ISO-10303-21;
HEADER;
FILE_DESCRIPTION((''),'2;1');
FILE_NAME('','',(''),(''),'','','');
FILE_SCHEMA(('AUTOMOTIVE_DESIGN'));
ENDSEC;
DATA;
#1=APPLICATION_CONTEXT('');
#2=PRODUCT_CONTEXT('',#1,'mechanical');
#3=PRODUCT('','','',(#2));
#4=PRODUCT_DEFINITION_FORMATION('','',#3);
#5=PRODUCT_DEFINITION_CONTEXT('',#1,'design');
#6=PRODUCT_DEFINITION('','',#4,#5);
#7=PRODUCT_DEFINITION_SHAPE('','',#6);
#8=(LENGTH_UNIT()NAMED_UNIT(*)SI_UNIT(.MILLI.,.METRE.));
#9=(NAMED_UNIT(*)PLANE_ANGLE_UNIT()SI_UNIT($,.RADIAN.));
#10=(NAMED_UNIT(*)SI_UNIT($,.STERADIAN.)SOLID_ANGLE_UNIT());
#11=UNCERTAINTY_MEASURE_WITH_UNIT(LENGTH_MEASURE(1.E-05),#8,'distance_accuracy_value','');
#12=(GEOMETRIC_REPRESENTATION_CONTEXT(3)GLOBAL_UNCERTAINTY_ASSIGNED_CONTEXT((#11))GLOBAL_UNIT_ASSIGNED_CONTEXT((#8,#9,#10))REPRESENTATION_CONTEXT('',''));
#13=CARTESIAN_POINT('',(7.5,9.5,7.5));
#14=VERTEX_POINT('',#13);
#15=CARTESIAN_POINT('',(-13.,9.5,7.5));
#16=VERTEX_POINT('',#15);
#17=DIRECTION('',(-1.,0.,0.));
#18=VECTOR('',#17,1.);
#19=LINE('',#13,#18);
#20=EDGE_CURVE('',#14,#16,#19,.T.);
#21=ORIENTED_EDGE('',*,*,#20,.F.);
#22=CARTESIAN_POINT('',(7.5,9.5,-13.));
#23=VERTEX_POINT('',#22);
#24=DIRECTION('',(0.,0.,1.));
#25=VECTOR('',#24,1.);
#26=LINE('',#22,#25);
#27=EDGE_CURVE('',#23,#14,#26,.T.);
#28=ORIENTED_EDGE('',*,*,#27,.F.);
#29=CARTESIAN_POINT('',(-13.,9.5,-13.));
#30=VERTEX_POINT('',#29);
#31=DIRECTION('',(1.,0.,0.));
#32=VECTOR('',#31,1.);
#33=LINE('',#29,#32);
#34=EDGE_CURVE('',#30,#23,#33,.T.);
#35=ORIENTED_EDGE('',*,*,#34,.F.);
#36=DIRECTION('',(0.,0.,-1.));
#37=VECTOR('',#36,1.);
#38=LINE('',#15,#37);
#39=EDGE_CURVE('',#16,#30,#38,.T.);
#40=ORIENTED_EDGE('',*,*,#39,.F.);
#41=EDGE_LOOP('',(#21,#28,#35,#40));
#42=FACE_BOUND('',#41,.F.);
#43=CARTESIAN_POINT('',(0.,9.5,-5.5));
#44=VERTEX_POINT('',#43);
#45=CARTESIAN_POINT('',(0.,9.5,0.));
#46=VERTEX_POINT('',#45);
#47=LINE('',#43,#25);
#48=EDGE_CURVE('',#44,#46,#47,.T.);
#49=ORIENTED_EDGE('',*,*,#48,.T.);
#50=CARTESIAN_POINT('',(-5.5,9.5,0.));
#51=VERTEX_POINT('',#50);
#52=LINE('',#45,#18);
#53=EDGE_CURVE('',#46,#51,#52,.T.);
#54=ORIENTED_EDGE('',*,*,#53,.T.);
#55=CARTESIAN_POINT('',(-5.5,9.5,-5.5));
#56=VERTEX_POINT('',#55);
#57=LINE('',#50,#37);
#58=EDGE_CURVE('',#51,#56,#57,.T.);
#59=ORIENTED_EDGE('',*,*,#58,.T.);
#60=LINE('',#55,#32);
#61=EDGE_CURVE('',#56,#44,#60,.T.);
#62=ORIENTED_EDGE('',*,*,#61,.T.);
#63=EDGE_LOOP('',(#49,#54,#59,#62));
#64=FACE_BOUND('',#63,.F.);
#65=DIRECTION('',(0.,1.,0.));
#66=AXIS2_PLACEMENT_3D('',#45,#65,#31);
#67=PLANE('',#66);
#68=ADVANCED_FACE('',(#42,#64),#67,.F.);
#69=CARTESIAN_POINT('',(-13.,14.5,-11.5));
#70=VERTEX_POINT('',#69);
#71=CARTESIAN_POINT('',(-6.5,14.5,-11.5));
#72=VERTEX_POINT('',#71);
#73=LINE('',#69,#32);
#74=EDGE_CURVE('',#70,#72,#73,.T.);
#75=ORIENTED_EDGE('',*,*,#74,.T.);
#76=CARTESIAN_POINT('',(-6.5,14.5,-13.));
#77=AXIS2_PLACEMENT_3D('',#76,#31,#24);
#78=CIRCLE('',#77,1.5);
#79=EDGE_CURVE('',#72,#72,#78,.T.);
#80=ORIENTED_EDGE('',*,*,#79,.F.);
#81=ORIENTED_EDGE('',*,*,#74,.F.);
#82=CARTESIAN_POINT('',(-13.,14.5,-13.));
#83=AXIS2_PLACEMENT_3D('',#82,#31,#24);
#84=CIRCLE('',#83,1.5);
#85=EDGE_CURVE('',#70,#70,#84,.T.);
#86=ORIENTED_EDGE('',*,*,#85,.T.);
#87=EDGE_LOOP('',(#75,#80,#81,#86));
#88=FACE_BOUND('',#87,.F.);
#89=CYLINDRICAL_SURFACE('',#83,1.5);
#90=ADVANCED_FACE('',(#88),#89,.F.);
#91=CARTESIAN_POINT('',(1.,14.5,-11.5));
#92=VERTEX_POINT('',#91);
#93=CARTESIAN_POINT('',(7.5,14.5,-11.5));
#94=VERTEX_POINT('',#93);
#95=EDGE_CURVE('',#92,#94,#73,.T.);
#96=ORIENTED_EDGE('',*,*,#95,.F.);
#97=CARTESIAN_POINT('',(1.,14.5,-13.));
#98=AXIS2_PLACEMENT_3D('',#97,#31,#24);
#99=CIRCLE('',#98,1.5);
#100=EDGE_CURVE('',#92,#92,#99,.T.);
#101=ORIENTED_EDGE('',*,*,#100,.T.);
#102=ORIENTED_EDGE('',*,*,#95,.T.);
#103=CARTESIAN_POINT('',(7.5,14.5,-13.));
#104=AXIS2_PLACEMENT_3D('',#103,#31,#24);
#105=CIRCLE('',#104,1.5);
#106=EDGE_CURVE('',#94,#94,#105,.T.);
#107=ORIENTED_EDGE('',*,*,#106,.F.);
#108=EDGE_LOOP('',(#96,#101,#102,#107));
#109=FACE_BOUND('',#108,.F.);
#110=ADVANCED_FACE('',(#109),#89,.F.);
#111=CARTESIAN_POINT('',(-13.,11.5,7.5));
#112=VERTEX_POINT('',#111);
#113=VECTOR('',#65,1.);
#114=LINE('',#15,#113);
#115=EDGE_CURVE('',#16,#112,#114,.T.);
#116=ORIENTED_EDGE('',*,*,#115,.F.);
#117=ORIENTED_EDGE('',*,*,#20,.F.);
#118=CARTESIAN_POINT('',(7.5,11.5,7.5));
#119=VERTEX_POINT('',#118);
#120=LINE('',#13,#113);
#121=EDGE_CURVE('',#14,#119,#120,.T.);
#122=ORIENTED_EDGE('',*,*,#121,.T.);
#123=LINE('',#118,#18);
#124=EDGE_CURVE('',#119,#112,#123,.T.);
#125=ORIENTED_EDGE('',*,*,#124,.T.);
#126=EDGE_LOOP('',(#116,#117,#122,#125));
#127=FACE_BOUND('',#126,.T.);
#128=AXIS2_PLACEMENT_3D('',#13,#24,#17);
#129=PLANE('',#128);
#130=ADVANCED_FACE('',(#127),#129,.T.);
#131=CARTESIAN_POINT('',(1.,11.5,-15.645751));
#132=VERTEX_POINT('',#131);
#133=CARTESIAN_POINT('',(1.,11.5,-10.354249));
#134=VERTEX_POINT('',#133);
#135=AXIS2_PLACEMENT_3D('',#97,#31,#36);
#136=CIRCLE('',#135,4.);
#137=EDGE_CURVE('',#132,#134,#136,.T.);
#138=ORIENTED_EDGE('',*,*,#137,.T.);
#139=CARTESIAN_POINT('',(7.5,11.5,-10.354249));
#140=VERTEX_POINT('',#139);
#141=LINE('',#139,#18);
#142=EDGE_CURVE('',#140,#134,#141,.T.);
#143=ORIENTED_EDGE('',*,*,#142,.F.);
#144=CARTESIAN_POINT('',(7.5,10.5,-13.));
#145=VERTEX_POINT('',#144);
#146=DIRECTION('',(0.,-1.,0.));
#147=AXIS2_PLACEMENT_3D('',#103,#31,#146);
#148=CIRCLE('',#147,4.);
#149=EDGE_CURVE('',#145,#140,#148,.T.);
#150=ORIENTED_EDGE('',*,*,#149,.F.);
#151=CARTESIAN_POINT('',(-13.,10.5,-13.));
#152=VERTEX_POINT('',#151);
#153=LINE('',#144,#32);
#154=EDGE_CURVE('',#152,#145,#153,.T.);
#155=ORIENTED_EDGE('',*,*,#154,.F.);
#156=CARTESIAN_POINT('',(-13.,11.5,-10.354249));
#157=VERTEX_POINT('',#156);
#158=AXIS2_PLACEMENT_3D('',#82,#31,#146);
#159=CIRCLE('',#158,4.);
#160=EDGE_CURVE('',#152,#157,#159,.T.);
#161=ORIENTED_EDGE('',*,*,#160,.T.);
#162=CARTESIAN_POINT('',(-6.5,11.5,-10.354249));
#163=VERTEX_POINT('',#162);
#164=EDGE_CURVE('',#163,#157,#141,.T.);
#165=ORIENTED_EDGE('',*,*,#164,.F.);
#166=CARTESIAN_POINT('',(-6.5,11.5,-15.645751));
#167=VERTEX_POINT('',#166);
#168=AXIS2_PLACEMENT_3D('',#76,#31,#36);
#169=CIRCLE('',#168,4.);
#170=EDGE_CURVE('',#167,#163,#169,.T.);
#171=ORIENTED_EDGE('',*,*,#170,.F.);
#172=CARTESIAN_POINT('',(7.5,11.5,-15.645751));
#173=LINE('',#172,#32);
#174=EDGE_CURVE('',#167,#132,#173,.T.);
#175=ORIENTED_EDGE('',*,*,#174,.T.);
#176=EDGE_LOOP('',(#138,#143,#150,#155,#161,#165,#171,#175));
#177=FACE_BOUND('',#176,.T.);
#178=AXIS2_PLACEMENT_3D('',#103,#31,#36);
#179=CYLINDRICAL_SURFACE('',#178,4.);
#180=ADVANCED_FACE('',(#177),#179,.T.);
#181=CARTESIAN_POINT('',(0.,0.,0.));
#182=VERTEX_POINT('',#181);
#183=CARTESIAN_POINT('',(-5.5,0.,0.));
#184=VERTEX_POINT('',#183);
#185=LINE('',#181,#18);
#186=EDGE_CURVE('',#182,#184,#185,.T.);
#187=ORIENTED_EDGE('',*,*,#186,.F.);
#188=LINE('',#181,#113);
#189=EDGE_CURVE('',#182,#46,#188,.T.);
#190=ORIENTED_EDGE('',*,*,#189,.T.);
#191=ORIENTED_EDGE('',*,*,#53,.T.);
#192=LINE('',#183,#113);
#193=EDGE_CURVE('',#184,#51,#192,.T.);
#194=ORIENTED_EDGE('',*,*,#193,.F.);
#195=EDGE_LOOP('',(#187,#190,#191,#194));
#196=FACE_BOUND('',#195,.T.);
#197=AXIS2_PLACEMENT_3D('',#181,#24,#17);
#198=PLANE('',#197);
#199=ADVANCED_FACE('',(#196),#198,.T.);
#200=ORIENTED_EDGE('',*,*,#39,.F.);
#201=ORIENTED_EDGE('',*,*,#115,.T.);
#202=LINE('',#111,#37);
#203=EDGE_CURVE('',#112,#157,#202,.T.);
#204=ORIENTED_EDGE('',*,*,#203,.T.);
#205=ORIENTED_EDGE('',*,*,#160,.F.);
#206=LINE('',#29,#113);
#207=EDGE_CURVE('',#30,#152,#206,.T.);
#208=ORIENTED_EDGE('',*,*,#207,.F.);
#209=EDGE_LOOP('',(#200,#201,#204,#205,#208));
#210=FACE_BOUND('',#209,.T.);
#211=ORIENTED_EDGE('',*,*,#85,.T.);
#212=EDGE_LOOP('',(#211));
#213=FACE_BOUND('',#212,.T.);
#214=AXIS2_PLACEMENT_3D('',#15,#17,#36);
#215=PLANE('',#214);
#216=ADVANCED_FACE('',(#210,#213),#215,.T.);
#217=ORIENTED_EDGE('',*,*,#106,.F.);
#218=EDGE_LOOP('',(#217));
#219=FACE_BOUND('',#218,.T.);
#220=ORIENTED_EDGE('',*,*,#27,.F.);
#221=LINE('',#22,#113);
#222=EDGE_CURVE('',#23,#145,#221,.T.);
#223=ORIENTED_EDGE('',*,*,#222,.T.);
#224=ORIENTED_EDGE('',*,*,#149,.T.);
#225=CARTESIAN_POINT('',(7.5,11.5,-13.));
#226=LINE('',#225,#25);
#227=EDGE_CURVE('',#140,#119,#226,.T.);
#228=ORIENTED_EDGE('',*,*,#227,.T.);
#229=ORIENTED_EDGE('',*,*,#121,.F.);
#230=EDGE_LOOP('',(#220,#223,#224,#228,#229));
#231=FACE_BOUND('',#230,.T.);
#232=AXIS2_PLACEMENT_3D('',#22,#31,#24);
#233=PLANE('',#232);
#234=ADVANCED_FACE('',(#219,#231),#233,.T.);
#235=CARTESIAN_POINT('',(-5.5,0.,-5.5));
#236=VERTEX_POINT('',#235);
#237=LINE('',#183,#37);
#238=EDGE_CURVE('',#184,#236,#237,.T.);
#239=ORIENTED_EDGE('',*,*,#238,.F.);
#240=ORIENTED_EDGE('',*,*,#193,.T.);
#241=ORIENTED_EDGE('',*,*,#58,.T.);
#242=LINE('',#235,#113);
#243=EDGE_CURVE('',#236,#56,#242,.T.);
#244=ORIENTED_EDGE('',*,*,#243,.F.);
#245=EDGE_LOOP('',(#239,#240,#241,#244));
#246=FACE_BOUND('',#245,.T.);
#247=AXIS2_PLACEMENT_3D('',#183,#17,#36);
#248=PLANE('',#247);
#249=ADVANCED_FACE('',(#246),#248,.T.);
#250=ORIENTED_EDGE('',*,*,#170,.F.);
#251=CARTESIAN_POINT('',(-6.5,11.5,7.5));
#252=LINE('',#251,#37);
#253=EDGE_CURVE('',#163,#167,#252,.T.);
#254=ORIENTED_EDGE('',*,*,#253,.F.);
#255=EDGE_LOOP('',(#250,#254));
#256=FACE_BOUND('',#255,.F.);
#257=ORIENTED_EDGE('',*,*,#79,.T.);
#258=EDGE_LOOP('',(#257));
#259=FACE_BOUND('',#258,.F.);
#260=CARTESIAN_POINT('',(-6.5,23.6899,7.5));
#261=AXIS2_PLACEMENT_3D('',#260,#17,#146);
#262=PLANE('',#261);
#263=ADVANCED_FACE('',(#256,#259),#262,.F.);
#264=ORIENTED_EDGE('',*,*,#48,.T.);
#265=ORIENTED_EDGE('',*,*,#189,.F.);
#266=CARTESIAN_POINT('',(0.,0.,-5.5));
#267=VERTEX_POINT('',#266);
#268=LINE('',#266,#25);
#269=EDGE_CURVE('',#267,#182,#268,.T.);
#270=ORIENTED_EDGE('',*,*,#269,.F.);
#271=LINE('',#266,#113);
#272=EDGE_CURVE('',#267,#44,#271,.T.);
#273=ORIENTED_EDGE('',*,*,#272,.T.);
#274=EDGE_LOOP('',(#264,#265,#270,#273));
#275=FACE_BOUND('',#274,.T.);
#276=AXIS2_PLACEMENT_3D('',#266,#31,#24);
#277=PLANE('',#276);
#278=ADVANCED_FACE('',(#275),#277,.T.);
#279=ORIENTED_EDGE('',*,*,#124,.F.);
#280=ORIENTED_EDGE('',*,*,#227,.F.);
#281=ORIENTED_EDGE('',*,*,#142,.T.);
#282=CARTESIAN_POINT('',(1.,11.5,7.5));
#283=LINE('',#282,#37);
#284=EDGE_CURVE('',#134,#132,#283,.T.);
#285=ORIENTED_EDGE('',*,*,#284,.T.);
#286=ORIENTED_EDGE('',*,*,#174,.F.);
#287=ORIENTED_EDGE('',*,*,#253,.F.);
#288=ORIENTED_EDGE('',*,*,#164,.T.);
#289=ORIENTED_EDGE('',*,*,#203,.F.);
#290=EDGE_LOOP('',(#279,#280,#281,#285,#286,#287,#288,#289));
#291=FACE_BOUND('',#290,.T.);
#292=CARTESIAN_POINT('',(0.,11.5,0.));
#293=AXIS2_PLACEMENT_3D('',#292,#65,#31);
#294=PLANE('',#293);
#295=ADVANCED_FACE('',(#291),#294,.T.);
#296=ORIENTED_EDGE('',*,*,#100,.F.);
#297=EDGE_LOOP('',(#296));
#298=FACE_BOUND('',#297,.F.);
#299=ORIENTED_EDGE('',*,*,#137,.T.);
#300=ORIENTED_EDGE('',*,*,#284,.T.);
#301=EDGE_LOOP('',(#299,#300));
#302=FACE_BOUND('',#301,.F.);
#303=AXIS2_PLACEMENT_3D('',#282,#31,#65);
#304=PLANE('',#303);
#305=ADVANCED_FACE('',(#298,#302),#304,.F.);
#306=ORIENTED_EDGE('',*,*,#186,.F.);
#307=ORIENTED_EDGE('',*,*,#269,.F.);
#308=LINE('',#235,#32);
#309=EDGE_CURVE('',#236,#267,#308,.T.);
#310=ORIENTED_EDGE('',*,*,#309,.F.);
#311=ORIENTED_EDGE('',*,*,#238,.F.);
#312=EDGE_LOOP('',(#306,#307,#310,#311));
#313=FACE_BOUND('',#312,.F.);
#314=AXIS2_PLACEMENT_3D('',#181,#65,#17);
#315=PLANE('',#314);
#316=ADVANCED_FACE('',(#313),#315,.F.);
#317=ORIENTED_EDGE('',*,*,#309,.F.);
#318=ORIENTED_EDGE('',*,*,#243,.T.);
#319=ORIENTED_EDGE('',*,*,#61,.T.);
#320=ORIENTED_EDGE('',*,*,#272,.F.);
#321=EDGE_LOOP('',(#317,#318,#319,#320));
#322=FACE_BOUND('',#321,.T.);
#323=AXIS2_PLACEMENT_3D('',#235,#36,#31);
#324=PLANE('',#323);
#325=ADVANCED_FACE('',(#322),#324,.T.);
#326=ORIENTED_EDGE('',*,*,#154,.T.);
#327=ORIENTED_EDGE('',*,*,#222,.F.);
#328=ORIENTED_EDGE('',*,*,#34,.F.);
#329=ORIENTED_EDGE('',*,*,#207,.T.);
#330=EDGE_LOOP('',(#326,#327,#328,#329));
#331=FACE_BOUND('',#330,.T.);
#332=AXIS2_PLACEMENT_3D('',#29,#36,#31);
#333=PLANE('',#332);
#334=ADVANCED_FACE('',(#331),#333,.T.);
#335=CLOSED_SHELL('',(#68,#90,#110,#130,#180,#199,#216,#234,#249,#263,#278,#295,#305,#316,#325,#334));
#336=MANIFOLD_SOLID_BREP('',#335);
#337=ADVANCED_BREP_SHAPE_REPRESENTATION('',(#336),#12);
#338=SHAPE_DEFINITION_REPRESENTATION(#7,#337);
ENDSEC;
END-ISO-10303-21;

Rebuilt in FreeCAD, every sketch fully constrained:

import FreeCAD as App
import Part
import Sketcher
from FreeCAD import Vector

doc = App.newDocument("Part")
body = doc.addObject("PartDesign::Body", "Body")

# Sketch on XZ plane
sketch1 = doc.addObject("Sketcher::SketchObject", "Sketch")
body.addObject(sketch1)
sketch1.AttachmentSupport = (doc.XZ_Plane, [""])
sketch1.MapMode = "FlatFace"
sketch1.addGeometry([
    Part.LineSegment(Vector(-6, 0, 0), Vector(0, 0, 0)),
    Part.LineSegment(Vector(0, 0, 0), Vector(0, -6, 0)),
    Part.LineSegment(Vector(0, -6, 0), Vector(-6, -6, 0)),
    Part.LineSegment(Vector(-6, -6, 0), Vector(-6, 0, 0)),
], False)
sketch1.addConstraint([
    Sketcher.Constraint("Coincident", 0, 2, 1, 1),
    Sketcher.Constraint("Coincident", 1, 2, 2, 1),
    Sketcher.Constraint("Coincident", 2, 2, 3, 1),
    Sketcher.Constraint("Coincident", 3, 2, 0, 1),
    Sketcher.Constraint("Horizontal", 0),
    Sketcher.Constraint("Vertical", 1),
    Sketcher.Constraint("Horizontal", 2),
    Sketcher.Constraint("Vertical", 3),
    Sketcher.Constraint("Coincident", 0, 2, -1, 1),
    Sketcher.Constraint("Equal", 2, 1),
    Sketcher.Constraint("DistanceX", 0, 1, 0, 2, 5.5),
])
pad1 = doc.addObject("PartDesign::Pad", "Pad")
body.addObject(pad1)
pad1.Profile = sketch1
pad1.Length = 9.5
pad1.Reversed = True

# Sketch on XZ plane
sketch2 = doc.addObject("Sketcher::SketchObject", "Sketch001")
body.addObject(sketch2)
sketch2.AttachmentSupport = (doc.XZ_Plane, [""])
sketch2.MapMode = "FlatFace"
sketch2.AttachmentOffset = App.Placement(Vector(0, 0, -9.5), App.Rotation())
sketch2.addGeometry([
    Part.LineSegment(Vector(-13, 8, 0), Vector(8, 8, 0)),
    Part.LineSegment(Vector(8, 8, 0), Vector(8, -13, 0)),
    Part.LineSegment(Vector(8, -13, 0), Vector(-13, -13, 0)),
    Part.LineSegment(Vector(-13, -13, 0), Vector(-13, 8, 0)),
], False)
sketch2.addConstraint([
    Sketcher.Constraint("Coincident", 0, 2, 1, 1),
    Sketcher.Constraint("Coincident", 1, 2, 2, 1),
    Sketcher.Constraint("Coincident", 2, 2, 3, 1),
    Sketcher.Constraint("Coincident", 3, 2, 0, 1),
    Sketcher.Constraint("Horizontal", 0),
    Sketcher.Constraint("Vertical", 1),
    Sketcher.Constraint("Horizontal", 2),
    Sketcher.Constraint("Vertical", 3),
    Sketcher.Constraint("Equal", 2, 1),
    Sketcher.Constraint("DistanceX", 0, 1, 0, 2, 20.5),
    Sketcher.Constraint("DistanceY", 1, 2, -1, 1, 13.0),
    Sketcher.Constraint("DistanceX", 2, 2, -1, 1, 13.0),
])
pad2 = doc.addObject("PartDesign::Pad", "Pad001")
body.addObject(pad2)
pad2.Profile = sketch2
pad2.Length = 2
pad2.Reversed = True

# Sketch on YZ plane
sketch3 = doc.addObject("Sketcher::SketchObject", "Sketch002")
body.addObject(sketch3)
sketch3.AttachmentSupport = (doc.YZ_Plane, [""])
sketch3.MapMode = "FlatFace"
sketch3.AttachmentOffset = App.Placement(Vector(0, 0, 7.5), App.Rotation())
sketch3.addGeometry(Part.Circle(Vector(14.5, -13, 0), Vector(0, 0, 1), 4), False)
sketch3.addConstraint([
    Sketcher.Constraint("Diameter", 0, 8.0),
    Sketcher.Constraint("DistanceY", 0, 3, -1, 1, 13.0),
    Sketcher.Constraint("DistanceX", -1, 1, 0, 3, 14.5),
])
pad3 = doc.addObject("PartDesign::Pad", "Pad002")
body.addObject(pad3)
pad3.Profile = sketch3
pad3.Length = 20.5
pad3.Reversed = True

# Sketch on YZ plane
sketch4 = doc.addObject("Sketcher::SketchObject", "Sketch003")
body.addObject(sketch4)
sketch4.AttachmentSupport = (doc.YZ_Plane, [""])
sketch4.MapMode = "FlatFace"
sketch4.AttachmentOffset = App.Placement(Vector(0, 0, -13), App.Rotation())
sketch4.addGeometry(Part.Circle(Vector(14.5, -13, 0), Vector(0, 0, 1), 1.5), False)
sketch4.addConstraint([
    Sketcher.Constraint("Diameter", 0, 3.0),
    Sketcher.Constraint("DistanceY", 0, 3, -1, 1, 13.0),
    Sketcher.Constraint("DistanceX", -1, 1, 0, 3, 14.5),
])
doc.recompute()
hole = doc.addObject("PartDesign::Hole", "Hole")
body.addObject(hole)
hole.Profile = sketch4
hole.ThreadType = "None"
hole.Diameter = 3
hole.DepthType = "ThroughAll"
hole.Reversed = True

# Sketch on XY plane
sketch5 = doc.addObject("Sketcher::SketchObject", "Sketch004")
body.addObject(sketch5)
sketch5.AttachmentSupport = (doc.XY_Plane, [""])
sketch5.MapMode = "FlatFace"
sketch5.AttachmentOffset = App.Placement(Vector(0, 0, 7.5), App.Rotation())
sketch5.addGeometry([
    Part.LineSegment(Vector(-6, 24, 0), Vector(-6, 12, 0)),
    Part.LineSegment(Vector(-6, 12, 0), Vector(1, 12, 0)),
    Part.LineSegment(Vector(1, 12, 0), Vector(1, 24, 0)),
    Part.LineSegment(Vector(1, 24, 0), Vector(-6, 24, 0)),
], False)
sketch5.addConstraint([
    Sketcher.Constraint("Coincident", 0, 2, 1, 1),
    Sketcher.Constraint("Coincident", 1, 2, 2, 1),
    Sketcher.Constraint("Coincident", 2, 2, 3, 1),
    Sketcher.Constraint("Coincident", 3, 2, 0, 1),
    Sketcher.Constraint("Vertical", 0),
    Sketcher.Constraint("Horizontal", 1),
    Sketcher.Constraint("Vertical", 2),
    Sketcher.Constraint("Horizontal", 3),
    Sketcher.Constraint("DistanceX", 1, 1, 1, 2, 7.5),
    Sketcher.Constraint("DistanceY", 0, 2, 0, 1, 12.19),
    Sketcher.Constraint("DistanceX", 0, 2, -1, 1, 6.5),
    Sketcher.Constraint("DistanceY", -1, 1, 0, 2, 11.5),
])
pocket1 = doc.addObject("PartDesign::Pocket", "Pocket")
body.addObject(pocket1)
pocket1.Profile = sketch5
pocket1.Length = 30

doc.recompute()
